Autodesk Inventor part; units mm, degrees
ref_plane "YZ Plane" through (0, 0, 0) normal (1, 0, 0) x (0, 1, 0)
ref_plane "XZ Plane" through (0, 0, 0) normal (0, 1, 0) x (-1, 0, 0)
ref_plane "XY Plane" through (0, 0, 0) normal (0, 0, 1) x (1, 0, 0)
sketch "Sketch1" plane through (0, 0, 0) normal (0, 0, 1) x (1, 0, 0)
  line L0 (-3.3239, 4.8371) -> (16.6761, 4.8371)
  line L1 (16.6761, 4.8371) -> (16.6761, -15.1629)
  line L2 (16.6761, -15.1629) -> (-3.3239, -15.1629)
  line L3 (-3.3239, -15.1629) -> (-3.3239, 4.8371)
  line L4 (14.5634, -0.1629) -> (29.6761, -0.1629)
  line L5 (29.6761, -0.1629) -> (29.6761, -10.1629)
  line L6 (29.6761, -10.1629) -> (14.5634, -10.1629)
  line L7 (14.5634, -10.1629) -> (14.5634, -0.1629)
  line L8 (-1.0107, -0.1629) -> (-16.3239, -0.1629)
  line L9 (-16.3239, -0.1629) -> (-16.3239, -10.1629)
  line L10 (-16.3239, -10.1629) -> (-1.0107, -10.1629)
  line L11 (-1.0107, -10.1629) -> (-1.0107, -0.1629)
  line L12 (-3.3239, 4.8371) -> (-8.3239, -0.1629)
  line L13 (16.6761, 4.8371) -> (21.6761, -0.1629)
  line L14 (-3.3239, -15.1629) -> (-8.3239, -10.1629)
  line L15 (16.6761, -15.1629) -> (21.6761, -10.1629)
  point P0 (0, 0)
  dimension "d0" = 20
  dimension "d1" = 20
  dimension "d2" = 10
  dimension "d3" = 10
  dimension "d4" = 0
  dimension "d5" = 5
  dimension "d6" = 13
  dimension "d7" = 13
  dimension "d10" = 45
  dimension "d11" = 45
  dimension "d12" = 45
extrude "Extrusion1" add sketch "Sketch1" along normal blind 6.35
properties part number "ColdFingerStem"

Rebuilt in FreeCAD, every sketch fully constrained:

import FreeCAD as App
import Part
import Sketcher

doc = App.newDocument("Part")
params = doc.addObject("Spreadsheet::Sheet", "Params")
for row, (alias, value) in enumerate([
    ("sketch1_width", "20 mm"),
    ("sketch1_height", "10 mm"),
    ("pad1_length", "6.35 mm"),
], start=1):
    params.set(f"A{row}", alias)
    params.set(f"B{row}", "=" + value)
    params.setAlias(f"B{row}", alias)

body = doc.addObject("PartDesign::Body", "Body")

# Sketch on XY plane
sketch1 = body.newObject("Sketcher::SketchObject", "Sketch")
sketch1.AttachmentSupport = (doc.getObject("XY_Plane"), [""])
sketch1.MapMode = "FlatFace"
sketch1.addGeometry([
    Part.LineSegment(App.Vector(17, 5, 0), App.Vector(-3, 5, 0)),  # 0
    Part.LineSegment(App.Vector(-3, 5, 0), App.Vector(-8, 0, 0)),  # 1
    Part.LineSegment(App.Vector(-8, 0, 0), App.Vector(-16, 0, 0)),  # 2
    Part.LineSegment(App.Vector(-16, 0, 0), App.Vector(-16, -10, 0)),  # 3
    Part.LineSegment(App.Vector(-16, -10, 0), App.Vector(-8, -10, 0)),  # 4
    Part.LineSegment(App.Vector(-8, -10, 0), App.Vector(-3, -15, 0)),  # 5
    Part.LineSegment(App.Vector(-3, -15, 0), App.Vector(17, -15, 0)),  # 6
    Part.LineSegment(App.Vector(17, -15, 0), App.Vector(22, -10, 0)),  # 7
    Part.LineSegment(App.Vector(22, -10, 0), App.Vector(30, -10, 0)),  # 8
    Part.LineSegment(App.Vector(30, -10, 0), App.Vector(30, 0, 0)),  # 9
    Part.LineSegment(App.Vector(30, 0, 0), App.Vector(22, 0, 0)),  # 10
    Part.LineSegment(App.Vector(22, 0, 0), App.Vector(17, 5, 0)),  # 11
], False)
sketch1.addConstraint([
    Sketcher.Constraint("Coincident", 0, 2, 1, 1),
    Sketcher.Constraint("Coincident", 1, 2, 2, 1),
    Sketcher.Constraint("Coincident", 2, 2, 3, 1),
    Sketcher.Constraint("Coincident", 3, 2, 4, 1),
    Sketcher.Constraint("Coincident", 4, 2, 5, 1),
    Sketcher.Constraint("Coincident", 5, 2, 6, 1),
    Sketcher.Constraint("Coincident", 6, 2, 7, 1),
    Sketcher.Constraint("Coincident", 7, 2, 8, 1),
    Sketcher.Constraint("Coincident", 8, 2, 9, 1),
    Sketcher.Constraint("Coincident", 9, 2, 10, 1),
    Sketcher.Constraint("Coincident", 10, 2, 11, 1),
    Sketcher.Constraint("Coincident", 11, 2, 0, 1),
    Sketcher.Constraint("Horizontal", 0),
    Sketcher.Constraint("Horizontal", 2),
    Sketcher.Constraint("Vertical", 3),
    Sketcher.Constraint("Horizontal", 4),
    Sketcher.Constraint("Horizontal", 6),
    Sketcher.Constraint("Horizontal", 8),
    Sketcher.Constraint("Vertical", 9),
    Sketcher.Constraint("Horizontal", 10),
    Sketcher.Constraint("Perpendicular", 1, 5),
    Sketcher.Constraint("Perpendicular", 5, 7),
    Sketcher.Constraint("Perpendicular", 7, 11),
    Sketcher.Constraint("Horizontal", 4, 2, 7, 2),
    Sketcher.Constraint("Horizontal", 2, 2, 9, 2),
    Sketcher.Constraint("Vertical", 1, 2, 4, 2),
    Sketcher.Constraint("Vertical", 0, 2, 5, 2),
    Sketcher.Constraint("Vertical", 7, 2, 10, 2),
    Sketcher.Constraint("Vertical", 6, 2, 11, 2),
    Sketcher.Constraint("Equal", 4, 8),
    Sketcher.Constraint("DistanceX", 0, 2, 0, 1, 20.0),
    Sketcher.Constraint("DistanceY", 3, 2, 3, 1, 10.0),
    Sketcher.Constraint("DistanceX", 1, 2, 0, 2, 5.0),
    Sketcher.Constraint("DistanceX", 2, 2, 0, 2, 13.0),
    Sketcher.Constraint("DistanceX", 0, 2, -1, 1, 3.324),
    Sketcher.Constraint("DistanceY", -1, 1, 0, 2, 4.837),
])
sketch1.setExpression("Constraints[30]", "Params.sketch1_width")
sketch1.setExpression("Constraints[31]", "Params.sketch1_height")
pad1 = body.newObject("PartDesign::Pad", "Pad")
pad1.Profile = sketch1
pad1.setExpression("Length", "Params.pad1_length")

doc.recompute()
